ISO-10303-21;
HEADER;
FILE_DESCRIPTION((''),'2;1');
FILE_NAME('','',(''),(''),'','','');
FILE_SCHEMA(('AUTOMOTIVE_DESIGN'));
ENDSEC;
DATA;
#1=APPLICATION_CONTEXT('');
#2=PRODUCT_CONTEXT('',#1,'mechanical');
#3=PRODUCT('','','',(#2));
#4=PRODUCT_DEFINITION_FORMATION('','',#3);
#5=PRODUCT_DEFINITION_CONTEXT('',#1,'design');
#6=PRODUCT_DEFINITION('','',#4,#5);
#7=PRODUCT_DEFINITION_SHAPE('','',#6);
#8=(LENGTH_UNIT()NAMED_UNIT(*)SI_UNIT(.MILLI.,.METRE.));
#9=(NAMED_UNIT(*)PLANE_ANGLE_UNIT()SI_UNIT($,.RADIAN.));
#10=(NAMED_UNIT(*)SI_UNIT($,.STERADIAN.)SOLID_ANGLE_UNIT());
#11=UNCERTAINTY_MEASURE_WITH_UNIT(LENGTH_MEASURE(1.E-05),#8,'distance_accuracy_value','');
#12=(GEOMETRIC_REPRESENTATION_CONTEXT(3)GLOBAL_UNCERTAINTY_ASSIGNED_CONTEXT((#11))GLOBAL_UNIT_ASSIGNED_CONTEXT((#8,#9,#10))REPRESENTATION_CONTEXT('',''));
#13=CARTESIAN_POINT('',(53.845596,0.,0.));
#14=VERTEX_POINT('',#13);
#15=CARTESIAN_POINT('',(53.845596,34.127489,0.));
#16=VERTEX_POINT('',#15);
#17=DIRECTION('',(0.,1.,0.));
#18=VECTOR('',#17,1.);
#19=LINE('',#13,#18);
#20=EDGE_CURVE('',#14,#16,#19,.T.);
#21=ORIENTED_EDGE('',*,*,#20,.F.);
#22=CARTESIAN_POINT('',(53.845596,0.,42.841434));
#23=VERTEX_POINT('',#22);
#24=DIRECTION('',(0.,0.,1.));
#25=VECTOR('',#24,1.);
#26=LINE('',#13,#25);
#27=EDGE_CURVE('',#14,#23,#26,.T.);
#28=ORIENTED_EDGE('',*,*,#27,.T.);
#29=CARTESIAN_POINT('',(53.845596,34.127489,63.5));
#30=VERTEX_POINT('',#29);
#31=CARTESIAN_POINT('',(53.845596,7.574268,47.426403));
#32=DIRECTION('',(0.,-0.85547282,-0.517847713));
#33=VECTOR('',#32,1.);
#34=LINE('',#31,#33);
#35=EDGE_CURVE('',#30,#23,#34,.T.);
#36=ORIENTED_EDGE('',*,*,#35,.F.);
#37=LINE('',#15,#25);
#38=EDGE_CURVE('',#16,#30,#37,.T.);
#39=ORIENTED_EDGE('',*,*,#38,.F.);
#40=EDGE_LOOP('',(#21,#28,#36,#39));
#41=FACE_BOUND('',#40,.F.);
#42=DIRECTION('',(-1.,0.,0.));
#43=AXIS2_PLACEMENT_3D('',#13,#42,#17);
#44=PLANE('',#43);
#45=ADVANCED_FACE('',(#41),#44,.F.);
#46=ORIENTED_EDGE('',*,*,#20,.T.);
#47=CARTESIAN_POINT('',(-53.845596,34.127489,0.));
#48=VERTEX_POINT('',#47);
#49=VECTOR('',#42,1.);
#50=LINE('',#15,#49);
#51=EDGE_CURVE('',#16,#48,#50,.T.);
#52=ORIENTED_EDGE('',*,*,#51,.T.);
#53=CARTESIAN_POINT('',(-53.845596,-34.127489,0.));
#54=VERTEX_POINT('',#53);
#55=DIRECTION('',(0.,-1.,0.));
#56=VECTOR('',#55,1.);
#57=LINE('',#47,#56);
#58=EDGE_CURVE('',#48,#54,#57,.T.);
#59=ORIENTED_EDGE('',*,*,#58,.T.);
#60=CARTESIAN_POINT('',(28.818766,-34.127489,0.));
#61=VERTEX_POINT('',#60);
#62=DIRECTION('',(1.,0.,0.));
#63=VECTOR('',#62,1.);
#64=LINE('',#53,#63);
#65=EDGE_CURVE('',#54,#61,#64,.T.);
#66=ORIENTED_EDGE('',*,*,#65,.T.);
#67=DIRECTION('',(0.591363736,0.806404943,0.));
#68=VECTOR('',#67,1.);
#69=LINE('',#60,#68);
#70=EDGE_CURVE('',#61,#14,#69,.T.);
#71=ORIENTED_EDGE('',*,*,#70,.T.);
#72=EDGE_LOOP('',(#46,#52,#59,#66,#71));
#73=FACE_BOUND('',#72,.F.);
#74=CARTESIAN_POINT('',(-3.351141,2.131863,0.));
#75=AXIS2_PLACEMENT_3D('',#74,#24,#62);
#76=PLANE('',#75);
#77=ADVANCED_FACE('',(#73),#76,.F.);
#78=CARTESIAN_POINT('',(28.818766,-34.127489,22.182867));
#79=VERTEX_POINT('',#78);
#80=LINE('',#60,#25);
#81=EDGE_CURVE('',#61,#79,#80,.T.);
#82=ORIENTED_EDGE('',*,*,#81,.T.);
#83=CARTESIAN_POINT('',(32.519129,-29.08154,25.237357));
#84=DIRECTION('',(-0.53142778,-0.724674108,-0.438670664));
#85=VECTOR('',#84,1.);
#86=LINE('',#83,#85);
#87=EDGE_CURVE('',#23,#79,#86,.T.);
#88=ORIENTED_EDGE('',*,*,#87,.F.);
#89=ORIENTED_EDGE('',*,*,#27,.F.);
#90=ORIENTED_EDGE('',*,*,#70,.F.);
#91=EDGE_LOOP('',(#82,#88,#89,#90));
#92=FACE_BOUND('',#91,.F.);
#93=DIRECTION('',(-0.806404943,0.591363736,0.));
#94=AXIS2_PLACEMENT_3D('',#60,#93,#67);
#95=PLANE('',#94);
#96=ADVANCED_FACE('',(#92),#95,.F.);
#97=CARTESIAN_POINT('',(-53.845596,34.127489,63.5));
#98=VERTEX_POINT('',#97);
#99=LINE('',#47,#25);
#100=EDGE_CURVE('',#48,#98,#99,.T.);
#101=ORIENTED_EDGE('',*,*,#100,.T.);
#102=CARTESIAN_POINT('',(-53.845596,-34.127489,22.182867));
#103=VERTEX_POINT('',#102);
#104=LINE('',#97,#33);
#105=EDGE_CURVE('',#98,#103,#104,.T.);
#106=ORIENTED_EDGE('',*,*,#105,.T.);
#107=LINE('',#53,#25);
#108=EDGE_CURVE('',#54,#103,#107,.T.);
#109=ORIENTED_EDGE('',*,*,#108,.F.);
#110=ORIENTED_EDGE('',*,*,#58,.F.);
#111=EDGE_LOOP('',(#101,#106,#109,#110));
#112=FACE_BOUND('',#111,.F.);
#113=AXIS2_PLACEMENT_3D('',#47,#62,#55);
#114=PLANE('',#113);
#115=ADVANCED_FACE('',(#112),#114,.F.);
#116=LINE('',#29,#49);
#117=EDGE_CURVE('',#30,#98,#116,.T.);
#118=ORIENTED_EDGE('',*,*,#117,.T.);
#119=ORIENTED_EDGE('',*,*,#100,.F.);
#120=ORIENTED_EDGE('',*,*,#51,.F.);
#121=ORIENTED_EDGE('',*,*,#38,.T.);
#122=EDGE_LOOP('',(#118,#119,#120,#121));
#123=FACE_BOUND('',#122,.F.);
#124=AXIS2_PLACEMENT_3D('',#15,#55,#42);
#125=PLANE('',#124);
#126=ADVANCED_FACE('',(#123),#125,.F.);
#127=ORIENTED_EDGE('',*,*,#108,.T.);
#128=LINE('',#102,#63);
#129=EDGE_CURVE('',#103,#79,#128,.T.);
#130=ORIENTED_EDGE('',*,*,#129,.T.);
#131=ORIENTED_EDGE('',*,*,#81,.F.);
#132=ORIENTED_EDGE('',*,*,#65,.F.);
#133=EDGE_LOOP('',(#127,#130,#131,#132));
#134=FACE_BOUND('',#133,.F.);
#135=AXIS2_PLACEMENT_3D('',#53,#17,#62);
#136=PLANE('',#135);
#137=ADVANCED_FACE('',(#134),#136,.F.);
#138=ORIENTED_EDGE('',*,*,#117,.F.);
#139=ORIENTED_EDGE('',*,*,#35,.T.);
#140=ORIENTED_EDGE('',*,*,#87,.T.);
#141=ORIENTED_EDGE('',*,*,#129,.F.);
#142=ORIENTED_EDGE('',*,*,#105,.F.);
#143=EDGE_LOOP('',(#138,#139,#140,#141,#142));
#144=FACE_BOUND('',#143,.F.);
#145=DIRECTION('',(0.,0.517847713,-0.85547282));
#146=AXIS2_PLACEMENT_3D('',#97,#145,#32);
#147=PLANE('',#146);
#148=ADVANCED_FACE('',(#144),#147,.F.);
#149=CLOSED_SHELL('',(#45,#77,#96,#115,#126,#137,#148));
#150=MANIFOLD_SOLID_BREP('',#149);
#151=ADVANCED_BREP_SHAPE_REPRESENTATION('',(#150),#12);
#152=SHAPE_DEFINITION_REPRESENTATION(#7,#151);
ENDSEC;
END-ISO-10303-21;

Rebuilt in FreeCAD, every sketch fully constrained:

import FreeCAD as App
import Part
import Sketcher

V = App.Vector
Q = App.Units.Quantity

doc = App.newDocument("Part")
body = doc.addObject("PartDesign::Body", "Body")

# Sketch on XY plane
sketch1 = body.newObject("Sketcher::SketchObject", "Sketch")
sketch1.AttachmentSupport = (doc.getObject("XY_Plane"), [""])
sketch1.MapMode = "FlatFace"
sketch1.addGeometry([
    Part.LineSegment(V(54, 0, 0), V(54, 34, 0)),  # 0
    Part.LineSegment(V(54, 34, 0), V(-54, 34, 0)),  # 1
    Part.LineSegment(V(-54, 34, 0), V(-54, -34, 0)),  # 2
    Part.LineSegment(V(-54, -34, 0), V(29, -34, 0)),  # 3
    Part.LineSegment(V(29, -34, 0), V(54, 0, 0)),  # 4
], False)
sketch1.addConstraint([
    Sketcher.Constraint("Coincident", 0, 2, 1, 1),
    Sketcher.Constraint("Coincident", 1, 2, 2, 1),
    Sketcher.Constraint("Coincident", 2, 2, 3, 1),
    Sketcher.Constraint("Coincident", 3, 2, 4, 1),
    Sketcher.Constraint("Coincident", 4, 2, 0, 1),
    Sketcher.Constraint("Vertical", 0),
    Sketcher.Constraint("Horizontal", 1),
    Sketcher.Constraint("Vertical", 2),
    Sketcher.Constraint("Horizontal", 3),
    Sketcher.Constraint("Symmetric", 0, 2, 2, 2, -1, 1),
    Sketcher.Constraint("PointOnObject", 4, 2, -1),
    Sketcher.Constraint("DistanceX", 1, 2, 1, 1, 107.691192),
    Sketcher.Constraint("DistanceX", 3, 1, 3, 2, 82.664362),
    Sketcher.Constraint("DistanceY", 0, 1, 0, 2, 34.127489),
])
pad1 = body.newObject("PartDesign::Pad", "Pad")
pad1.Profile = sketch1
pad1.Length = Q("2.5 in")

# Sketch on YZ plane
sketch2 = body.newObject("Sketcher::SketchObject", "Sketch001")
sketch2.AttachmentSupport = (doc.getObject("YZ_Plane"), [""])
sketch2.MapMode = "FlatFace"
sketch2.AttachmentOffset = App.Placement(V(0, 0, -53.845596), App.Rotation())
sketch2.addGeometry([
    Part.LineSegment(V(-34, 64, 0), V(34, 64, 0)),
    Part.LineSegment(V(34, 64, 0), V(-34, 22, 0)),
    Part.LineSegment(V(-34, 22, 0), V(-34, 64, 0)),
], False)
sketch2.addConstraint([
    Sketcher.Constraint("Coincident", 0, 2, 1, 1),
    Sketcher.Constraint("Coincident", 1, 2, 2, 1),
    Sketcher.Constraint("Coincident", 2, 2, 0, 1),
    Sketcher.Constraint("Horizontal", 0),
    Sketcher.Constraint("Vertical", 2),
    Sketcher.Constraint("DistanceY", -1, 1, 0, 2, Q("2.5 in")),
    Sketcher.Constraint("Distance", 1, 79.786261),
    Sketcher.Constraint("DistanceX", 0, 1, 0, 2, 68.254978),
    Sketcher.Constraint("DistanceX", -1, 1, 0, 2, 34.127489),
])
pocket1 = body.newObject("PartDesign::Pocket", "Pocket")
pocket1.Profile = sketch2
pocket1.Type = "ThroughAll"
pocket1.Reversed = True

doc.recompute()
